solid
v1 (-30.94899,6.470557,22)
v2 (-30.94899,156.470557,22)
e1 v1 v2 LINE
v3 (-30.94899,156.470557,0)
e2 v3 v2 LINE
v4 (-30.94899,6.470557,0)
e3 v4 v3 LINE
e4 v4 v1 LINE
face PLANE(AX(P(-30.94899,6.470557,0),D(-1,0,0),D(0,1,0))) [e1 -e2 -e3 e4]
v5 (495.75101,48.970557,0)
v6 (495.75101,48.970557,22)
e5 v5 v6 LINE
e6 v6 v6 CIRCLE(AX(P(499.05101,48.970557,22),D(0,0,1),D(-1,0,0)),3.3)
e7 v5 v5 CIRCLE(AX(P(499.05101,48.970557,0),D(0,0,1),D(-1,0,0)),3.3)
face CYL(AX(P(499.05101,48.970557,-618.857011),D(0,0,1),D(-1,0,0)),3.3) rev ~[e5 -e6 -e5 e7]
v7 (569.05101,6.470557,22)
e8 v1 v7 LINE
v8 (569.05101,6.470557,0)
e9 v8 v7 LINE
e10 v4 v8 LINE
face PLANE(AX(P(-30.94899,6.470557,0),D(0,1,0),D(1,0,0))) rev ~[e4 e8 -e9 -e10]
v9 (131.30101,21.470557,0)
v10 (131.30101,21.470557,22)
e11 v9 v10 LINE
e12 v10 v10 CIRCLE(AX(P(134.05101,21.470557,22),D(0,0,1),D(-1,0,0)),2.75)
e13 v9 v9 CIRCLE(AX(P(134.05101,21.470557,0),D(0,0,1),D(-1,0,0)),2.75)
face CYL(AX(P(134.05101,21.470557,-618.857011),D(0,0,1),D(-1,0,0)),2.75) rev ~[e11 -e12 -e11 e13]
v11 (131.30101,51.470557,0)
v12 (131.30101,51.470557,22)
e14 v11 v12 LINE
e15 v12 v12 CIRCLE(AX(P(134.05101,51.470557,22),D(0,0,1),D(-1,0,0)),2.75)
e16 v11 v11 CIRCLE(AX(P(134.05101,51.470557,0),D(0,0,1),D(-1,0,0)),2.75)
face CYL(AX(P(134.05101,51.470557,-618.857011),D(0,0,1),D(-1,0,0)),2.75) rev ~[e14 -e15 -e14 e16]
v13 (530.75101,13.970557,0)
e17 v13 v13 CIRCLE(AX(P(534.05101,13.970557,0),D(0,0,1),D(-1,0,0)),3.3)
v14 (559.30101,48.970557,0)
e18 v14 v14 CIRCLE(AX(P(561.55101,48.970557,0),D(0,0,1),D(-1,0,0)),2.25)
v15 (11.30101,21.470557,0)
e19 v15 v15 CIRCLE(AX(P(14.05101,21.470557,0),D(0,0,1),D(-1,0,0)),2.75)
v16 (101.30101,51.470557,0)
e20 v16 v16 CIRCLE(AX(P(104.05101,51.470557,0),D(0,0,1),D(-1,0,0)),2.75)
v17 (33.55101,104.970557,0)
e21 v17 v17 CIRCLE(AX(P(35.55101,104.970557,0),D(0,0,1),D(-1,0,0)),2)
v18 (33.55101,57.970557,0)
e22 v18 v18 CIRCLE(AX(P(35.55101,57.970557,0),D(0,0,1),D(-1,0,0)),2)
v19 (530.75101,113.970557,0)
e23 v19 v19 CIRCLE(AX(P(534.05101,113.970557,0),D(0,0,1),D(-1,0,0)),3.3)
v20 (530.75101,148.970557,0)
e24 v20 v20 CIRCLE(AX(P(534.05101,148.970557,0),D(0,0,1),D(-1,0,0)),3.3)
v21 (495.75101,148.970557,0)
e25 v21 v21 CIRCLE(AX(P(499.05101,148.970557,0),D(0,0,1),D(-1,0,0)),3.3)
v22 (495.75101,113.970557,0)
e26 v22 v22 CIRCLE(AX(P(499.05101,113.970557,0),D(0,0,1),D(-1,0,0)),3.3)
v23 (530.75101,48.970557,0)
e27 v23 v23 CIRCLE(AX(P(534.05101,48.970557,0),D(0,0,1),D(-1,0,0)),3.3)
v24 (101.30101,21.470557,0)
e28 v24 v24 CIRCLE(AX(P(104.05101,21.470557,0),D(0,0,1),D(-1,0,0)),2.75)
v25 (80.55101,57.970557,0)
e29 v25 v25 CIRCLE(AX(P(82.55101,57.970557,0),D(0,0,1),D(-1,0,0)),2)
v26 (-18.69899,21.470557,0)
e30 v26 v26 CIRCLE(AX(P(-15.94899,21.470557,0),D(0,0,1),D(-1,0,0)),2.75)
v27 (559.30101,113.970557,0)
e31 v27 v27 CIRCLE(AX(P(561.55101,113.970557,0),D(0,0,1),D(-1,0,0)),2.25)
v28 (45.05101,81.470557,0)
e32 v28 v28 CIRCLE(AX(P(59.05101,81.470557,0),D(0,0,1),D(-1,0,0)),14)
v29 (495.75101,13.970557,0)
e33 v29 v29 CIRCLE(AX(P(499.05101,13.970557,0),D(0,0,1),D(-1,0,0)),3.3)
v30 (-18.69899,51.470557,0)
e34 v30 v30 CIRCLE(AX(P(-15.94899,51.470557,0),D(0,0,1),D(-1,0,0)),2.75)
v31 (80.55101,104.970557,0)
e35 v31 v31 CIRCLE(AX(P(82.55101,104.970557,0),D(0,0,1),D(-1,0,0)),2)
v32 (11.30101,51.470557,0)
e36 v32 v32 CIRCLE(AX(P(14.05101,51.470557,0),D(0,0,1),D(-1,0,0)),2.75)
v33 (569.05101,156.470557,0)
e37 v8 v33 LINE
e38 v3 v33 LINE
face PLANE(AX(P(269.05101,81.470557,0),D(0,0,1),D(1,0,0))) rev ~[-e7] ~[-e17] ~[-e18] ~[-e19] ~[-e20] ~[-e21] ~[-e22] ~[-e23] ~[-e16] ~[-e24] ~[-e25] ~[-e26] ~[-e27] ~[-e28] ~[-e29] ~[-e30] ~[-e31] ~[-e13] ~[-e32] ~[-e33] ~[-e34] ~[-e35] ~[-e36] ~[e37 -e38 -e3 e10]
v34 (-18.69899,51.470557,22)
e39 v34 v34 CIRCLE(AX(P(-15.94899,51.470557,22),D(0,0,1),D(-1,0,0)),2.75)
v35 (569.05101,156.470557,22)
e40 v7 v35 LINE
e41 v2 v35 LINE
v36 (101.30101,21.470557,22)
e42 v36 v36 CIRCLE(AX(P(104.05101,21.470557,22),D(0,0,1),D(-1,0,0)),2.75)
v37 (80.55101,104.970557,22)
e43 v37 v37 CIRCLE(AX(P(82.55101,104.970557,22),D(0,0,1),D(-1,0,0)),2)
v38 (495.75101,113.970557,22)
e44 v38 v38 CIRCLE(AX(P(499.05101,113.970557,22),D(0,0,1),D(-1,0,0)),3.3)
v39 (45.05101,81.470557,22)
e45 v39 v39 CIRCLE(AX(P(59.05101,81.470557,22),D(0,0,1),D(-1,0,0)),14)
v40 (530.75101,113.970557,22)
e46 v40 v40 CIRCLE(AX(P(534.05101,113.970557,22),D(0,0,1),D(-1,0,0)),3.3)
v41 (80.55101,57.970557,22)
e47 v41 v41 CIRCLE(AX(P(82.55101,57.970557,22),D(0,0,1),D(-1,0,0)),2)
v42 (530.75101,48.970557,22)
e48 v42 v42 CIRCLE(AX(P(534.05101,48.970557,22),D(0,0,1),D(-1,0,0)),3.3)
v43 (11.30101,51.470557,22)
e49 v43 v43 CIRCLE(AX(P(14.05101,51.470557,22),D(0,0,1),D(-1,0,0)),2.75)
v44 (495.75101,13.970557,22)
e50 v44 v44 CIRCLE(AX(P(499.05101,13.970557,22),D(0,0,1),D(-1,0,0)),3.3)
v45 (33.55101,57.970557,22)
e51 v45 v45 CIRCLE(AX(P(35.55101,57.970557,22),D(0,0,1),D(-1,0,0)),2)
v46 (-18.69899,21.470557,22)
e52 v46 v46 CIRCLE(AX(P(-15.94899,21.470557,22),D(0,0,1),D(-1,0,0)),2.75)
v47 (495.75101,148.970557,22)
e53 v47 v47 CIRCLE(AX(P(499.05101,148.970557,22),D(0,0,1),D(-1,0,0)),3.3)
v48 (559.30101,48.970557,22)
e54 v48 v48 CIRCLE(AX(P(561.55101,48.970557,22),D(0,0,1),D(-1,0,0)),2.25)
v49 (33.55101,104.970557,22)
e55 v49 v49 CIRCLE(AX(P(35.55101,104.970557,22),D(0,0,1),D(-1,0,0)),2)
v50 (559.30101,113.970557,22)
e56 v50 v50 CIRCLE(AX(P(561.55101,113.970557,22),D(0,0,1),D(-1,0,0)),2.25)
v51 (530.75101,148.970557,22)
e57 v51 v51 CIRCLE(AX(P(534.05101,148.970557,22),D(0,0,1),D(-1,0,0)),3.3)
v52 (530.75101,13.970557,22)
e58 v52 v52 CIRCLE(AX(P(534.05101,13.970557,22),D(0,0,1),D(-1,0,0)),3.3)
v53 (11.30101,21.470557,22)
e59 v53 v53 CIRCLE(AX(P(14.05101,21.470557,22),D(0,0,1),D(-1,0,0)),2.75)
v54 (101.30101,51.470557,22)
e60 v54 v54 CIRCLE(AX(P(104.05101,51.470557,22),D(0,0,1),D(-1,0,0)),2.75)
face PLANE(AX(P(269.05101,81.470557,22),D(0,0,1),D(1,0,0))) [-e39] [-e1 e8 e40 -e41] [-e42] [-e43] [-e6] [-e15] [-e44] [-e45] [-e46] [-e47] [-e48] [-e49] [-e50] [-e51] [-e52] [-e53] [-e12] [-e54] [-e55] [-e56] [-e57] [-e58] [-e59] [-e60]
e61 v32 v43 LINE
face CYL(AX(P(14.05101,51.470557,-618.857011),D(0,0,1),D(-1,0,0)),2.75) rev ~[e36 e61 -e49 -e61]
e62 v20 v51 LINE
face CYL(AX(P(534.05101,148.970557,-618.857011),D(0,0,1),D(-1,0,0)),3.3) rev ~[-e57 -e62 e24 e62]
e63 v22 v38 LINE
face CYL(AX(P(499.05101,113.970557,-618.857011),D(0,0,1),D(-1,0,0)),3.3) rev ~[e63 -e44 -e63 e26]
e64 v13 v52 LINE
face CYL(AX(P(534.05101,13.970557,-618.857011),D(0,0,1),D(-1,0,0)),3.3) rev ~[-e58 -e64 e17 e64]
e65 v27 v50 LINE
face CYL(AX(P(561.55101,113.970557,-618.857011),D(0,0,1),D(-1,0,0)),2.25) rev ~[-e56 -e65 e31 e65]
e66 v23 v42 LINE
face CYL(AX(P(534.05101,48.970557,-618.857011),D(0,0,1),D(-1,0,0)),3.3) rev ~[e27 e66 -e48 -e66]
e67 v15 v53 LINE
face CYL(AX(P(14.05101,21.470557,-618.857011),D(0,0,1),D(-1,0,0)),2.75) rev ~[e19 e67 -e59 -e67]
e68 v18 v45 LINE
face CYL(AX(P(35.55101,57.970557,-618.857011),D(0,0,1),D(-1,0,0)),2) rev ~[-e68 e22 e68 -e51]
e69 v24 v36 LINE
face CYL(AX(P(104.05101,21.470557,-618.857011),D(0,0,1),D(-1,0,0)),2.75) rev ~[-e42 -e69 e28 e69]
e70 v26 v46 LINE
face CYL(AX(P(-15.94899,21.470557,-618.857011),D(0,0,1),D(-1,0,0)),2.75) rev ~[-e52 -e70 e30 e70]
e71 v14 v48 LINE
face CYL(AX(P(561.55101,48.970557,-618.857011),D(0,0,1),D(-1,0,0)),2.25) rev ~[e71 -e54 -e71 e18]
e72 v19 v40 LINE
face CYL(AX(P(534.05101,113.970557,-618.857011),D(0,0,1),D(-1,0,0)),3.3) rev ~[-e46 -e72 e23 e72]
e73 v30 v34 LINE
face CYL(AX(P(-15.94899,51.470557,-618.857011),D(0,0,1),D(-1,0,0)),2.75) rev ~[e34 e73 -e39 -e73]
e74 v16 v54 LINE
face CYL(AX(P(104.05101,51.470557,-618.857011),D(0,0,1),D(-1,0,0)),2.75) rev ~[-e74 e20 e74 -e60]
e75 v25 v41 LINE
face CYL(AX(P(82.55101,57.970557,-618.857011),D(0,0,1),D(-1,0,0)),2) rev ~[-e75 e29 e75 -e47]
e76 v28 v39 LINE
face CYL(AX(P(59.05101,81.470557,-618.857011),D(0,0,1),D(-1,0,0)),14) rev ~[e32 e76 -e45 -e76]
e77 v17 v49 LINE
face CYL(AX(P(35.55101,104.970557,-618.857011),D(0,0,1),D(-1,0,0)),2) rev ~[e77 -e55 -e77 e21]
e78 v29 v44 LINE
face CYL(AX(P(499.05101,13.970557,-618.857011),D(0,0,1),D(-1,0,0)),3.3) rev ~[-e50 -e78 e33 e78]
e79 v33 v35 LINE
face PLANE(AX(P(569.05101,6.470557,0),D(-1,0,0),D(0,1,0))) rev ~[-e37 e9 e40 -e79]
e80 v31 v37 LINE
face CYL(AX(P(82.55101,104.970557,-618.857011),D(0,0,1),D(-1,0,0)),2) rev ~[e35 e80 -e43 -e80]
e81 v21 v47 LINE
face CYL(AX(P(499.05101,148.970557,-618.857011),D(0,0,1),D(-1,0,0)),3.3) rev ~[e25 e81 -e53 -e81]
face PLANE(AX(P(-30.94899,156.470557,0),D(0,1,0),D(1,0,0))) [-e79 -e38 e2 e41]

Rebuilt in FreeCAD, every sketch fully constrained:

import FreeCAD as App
import Part
import Sketcher

doc = App.newDocument("Part")
body = doc.addObject("PartDesign::Body", "Body")

# Sketch on XY plane
sketch1 = body.newObject("Sketcher::SketchObject", "Sketch")
sketch1.AttachmentSupport = (doc.getObject("XY_Plane"), [""])
sketch1.MapMode = "FlatFace"
sketch1.addGeometry([
    Part.LineSegment(App.Vector(-31, 156, 0), App.Vector(-31, 6, 0)),
    Part.LineSegment(App.Vector(-31, 6, 0), App.Vector(569, 6, 0)),
    Part.LineSegment(App.Vector(569, 6, 0), App.Vector(569, 156, 0)),
    Part.LineSegment(App.Vector(569, 156, 0), App.Vector(-31, 156, 0)),
], False)
sketch1.addConstraint([
    Sketcher.Constraint("Coincident", 0, 2, 1, 1),
    Sketcher.Constraint("Coincident", 1, 2, 2, 1),
    Sketcher.Constraint("Coincident", 2, 2, 3, 1),
    Sketcher.Constraint("Coincident", 3, 2, 0, 1),
    Sketcher.Constraint("Vertical", 0),
    Sketcher.Constraint("Horizontal", 1),
    Sketcher.Constraint("Vertical", 2),
    Sketcher.Constraint("Horizontal", 3),
    Sketcher.Constraint("DistanceX", 1, 1, 1, 2, 600.0),
    Sketcher.Constraint("DistanceY", 0, 2, 0, 1, 150.0),
    Sketcher.Constraint("DistanceX", 0, 2, -1, 1, 30.94899),
    Sketcher.Constraint("DistanceY", -1, 1, 0, 2, 6.470557),
])
pad1 = body.newObject("PartDesign::Pad", "Pad")
pad1.Profile = sketch1
pad1.Length = 22

# Sketch on XY plane
sketch2 = body.newObject("Sketcher::SketchObject", "Sketch001")
sketch2.AttachmentSupport = (doc.getObject("XY_Plane"), [""])
sketch2.MapMode = "FlatFace"
sketch2.addGeometry([
    Part.Circle(App.Vector(499.1, 114, 0), App.Vector(0, 0, 1), 3.3),  # 0
    Part.Circle(App.Vector(534.1, 114, 0), App.Vector(0, 0, 1), 3.3),  # 1
    Part.Circle(App.Vector(499.1, 149, 0), App.Vector(0, 0, 1), 3.3),  # 2
    Part.Circle(App.Vector(534.1, 149, 0), App.Vector(0, 0, 1), 3.3),  # 3
    Part.Circle(App.Vector(534.1, 14, 0), App.Vector(0, 0, 1), 3.3),  # 4
    Part.Circle(App.Vector(499.1, 49, 0), App.Vector(0, 0, 1), 3.3),  # 5
    Part.Circle(App.Vector(499.1, 14, 0), App.Vector(0, 0, 1), 3.3),  # 6
    Part.Circle(App.Vector(534.1, 49, 0), App.Vector(0, 0, 1), 3.3),  # 7
], False)
sketch2.addConstraint([
    Sketcher.Constraint("Equal", 0, 1),
    Sketcher.Constraint("Equal", 1, 2),
    Sketcher.Constraint("Equal", 2, 3),
    Sketcher.Constraint("Equal", 3, 4),
    Sketcher.Constraint("Equal", 4, 5),
    Sketcher.Constraint("Equal", 5, 6),
    Sketcher.Constraint("Equal", 6, 7),
    Sketcher.Constraint("Horizontal", 0, 3, 1, 3),
    Sketcher.Constraint("Horizontal", 2, 3, 3, 3),
    Sketcher.Constraint("Horizontal", 4, 3, 6, 3),
    Sketcher.Constraint("Horizontal", 5, 3, 7, 3),
    Sketcher.Constraint("Vertical", 0, 3, 2, 3),
    Sketcher.Constraint("Vertical", 1, 3, 3, 3),
    Sketcher.Constraint("Vertical", 3, 3, 4, 3),
    Sketcher.Constraint("Vertical", 2, 3, 5, 3),
    Sketcher.Constraint("Vertical", 5, 3, 6, 3),
    Sketcher.Constraint("Vertical", 4, 3, 7, 3),
    Sketcher.Constraint("Diameter", 0, 6.6),
    Sketcher.Constraint("DistanceX", 0, 3, 1, 3, 35.0),
    Sketcher.Constraint("DistanceY", 0, 3, 2, 3, 35.0),
    Sketcher.Constraint("DistanceY", 4, 3, 1, 3, 100.0),
    Sketcher.Constraint("DistanceY", 4, 3, 5, 3, 35.0),
    Sketcher.Constraint("DistanceX", -1, 1, 0, 3, 499.05101),
    Sketcher.Constraint("DistanceY", -1, 1, 0, 3, 113.970557),
])
doc.recompute()
hole = body.newObject("PartDesign::Hole", "Hole")
hole.Profile = sketch2
hole.ThreadType = "None"
hole.Diameter = 6.6
hole.DepthType = "ThroughAll"
hole.Reversed = True

# Sketch on XY plane
sketch3 = body.newObject("Sketcher::SketchObject", "Sketch002")
sketch3.AttachmentSupport = (doc.getObject("XY_Plane"), [""])
sketch3.MapMode = "FlatFace"
sketch3.addGeometry([
    Part.Circle(App.Vector(-15.9, 21.5, 0), App.Vector(0, 0, 1), 2.8),  # 0
    Part.Circle(App.Vector(14.1, 21.5, 0), App.Vector(0, 0, 1), 2.8),  # 1
    Part.Circle(App.Vector(104.1, 51.5, 0), App.Vector(0, 0, 1), 2.8),  # 2
    Part.Circle(App.Vector(104.1, 21.5, 0), App.Vector(0, 0, 1), 2.8),  # 3
    Part.Circle(App.Vector(14.1, 51.5, 0), App.Vector(0, 0, 1), 2.8),  # 4
    Part.Circle(App.Vector(134.1, 51.5, 0), App.Vector(0, 0, 1), 2.8),  # 5
    Part.Circle(App.Vector(134.1, 21.5, 0), App.Vector(0, 0, 1), 2.8),  # 6
    Part.Circle(App.Vector(-15.9, 51.5, 0), App.Vector(0, 0, 1), 2.8),  # 7
], False)
sketch3.addConstraint([
    Sketcher.Constraint("Equal", 0, 1),
    Sketcher.Constraint("Equal", 1, 2),
    Sketcher.Constraint("Equal", 2, 3),
    Sketcher.Constraint("Equal", 3, 4),
    Sketcher.Constraint("Equal", 4, 5),
    Sketcher.Constraint("Equal", 5, 6),
    Sketcher.Constraint("Equal", 6, 7),
    Sketcher.Constraint("Horizontal", 0, 3, 1, 3),
    Sketcher.Constraint("Horizontal", 1, 3, 3, 3),
    Sketcher.Constraint("Horizontal", 2, 3, 4, 3),
    Sketcher.Constraint("Horizontal", 4, 3, 5, 3),
    Sketcher.Constraint("Horizontal", 3, 3, 6, 3),
    Sketcher.Constraint("Horizontal", 5, 3, 7, 3),
    Sketcher.Constraint("Vertical", 2, 3, 3, 3),
    Sketcher.Constraint("Vertical", 1, 3, 4, 3),
    Sketcher.Constraint("Vertical", 5, 3, 6, 3),
    Sketcher.Constraint("Vertical", 0, 3, 7, 3),
    Sketcher.Constraint("Diameter", 0, 5.5),
    Sketcher.Constraint("DistanceX", 0, 3, 1, 3, 30.0),
    Sketcher.Constraint("DistanceX", 1, 3, 2, 3, 90.0),
    Sketcher.Constraint("DistanceY", 1, 3, 2, 3, 30.0),
    Sketcher.Constraint("DistanceX", 2, 3, 5, 3, 30.0),
    Sketcher.Constraint("DistanceX", 0, 3, -1, 1, 15.94899),
    Sketcher.Constraint("DistanceY", -1, 1, 0, 3, 21.470557),
])
doc.recompute()
hole2 = body.newObject("PartDesign::Hole", "Hole001")
hole2.Profile = sketch3
hole2.ThreadType = "None"
hole2.Diameter = 5.5
hole2.DepthType = "ThroughAll"
hole2.Reversed = True

# Sketch on XY plane
sketch4 = body.newObject("Sketcher::SketchObject", "Sketch003")
sketch4.AttachmentSupport = (doc.getObject("XY_Plane"), [""])
sketch4.MapMode = "FlatFace"
sketch4.addGeometry(Part.Circle(App.Vector(59, 81, 0), App.Vector(0, 0, 1), 14), False)
sketch4.addConstraint([
    Sketcher.Constraint("Diameter", 0, 28.0),
    Sketcher.Constraint("DistanceX", -1, 1, 0, 3, 59.05101),
    Sketcher.Constraint("DistanceY", -1, 1, 0, 3, 81.470557),
])
doc.recompute()
hole3 = body.newObject("PartDesign::Hole", "Hole002")
hole3.Profile = sketch4
hole3.ThreadType = "None"
hole3.Diameter = 28
hole3.DepthType = "ThroughAll"
hole3.Reversed = True

# Sketch on XY plane
sketch5 = body.newObject("Sketcher::SketchObject", "Sketch004")
sketch5.AttachmentSupport = (doc.getObject("XY_Plane"), [""])
sketch5.MapMode = "FlatFace"
sketch5.addGeometry([
    Part.Circle(App.Vector(561.6, 114, 0), App.Vector(0, 0, 1), 2.2),
    Part.Circle(App.Vector(561.6, 49, 0), App.Vector(0, 0, 1), 2.2),
], False)
sketch5.addConstraint([
    Sketcher.Constraint("Equal", 0, 1),
    Sketcher.Constraint("Vertical", 0, 3, 1, 3),
    Sketcher.Constraint("Diameter", 0, 4.5),
    Sketcher.Constraint("DistanceY", 1, 3, 0, 3, 65.0),
    Sketcher.Constraint("DistanceX", -1, 1, 0, 3, 561.55101),
    Sketcher.Constraint("DistanceY", -1, 1, 0, 3, 113.970557),
])
doc.recompute()
hole4 = body.newObject("PartDesign::Hole", "Hole003")
hole4.Profile = sketch5
hole4.ThreadType = "None"
hole4.Diameter = 4.5
hole4.DepthType = "ThroughAll"
hole4.Reversed = True

# Sketch on XY plane
sketch6 = body.newObject("Sketcher::SketchObject", "Sketch005")
sketch6.AttachmentSupport = (doc.getObject("XY_Plane"), [""])
sketch6.MapMode = "FlatFace"
sketch6.addGeometry([
    Part.Circle(App.Vector(82.6, 105, 0), App.Vector(0, 0, 1), 2),
    Part.Circle(App.Vector(35.6, 105, 0), App.Vector(0, 0, 1), 2),
    Part.Circle(App.Vector(35.6, 58, 0), App.Vector(0, 0, 1), 2),
    Part.Circle(App.Vector(82.6, 58, 0), App.Vector(0, 0, 1), 2),
], False)
sketch6.addConstraint([
    Sketcher.Constraint("Equal", 0, 1),
    Sketcher.Constraint("Equal", 1, 2),
    Sketcher.Constraint("Equal", 2, 3),
    Sketcher.Constraint("Horizontal", 0, 3, 1, 3),
    Sketcher.Constraint("Horizontal", 2, 3, 3, 3),
    Sketcher.Constraint("Vertical", 1, 3, 2, 3),
    Sketcher.Constraint("Vertical", 0, 3, 3, 3),
    Sketcher.Constraint("Diameter", 0, 4.0),
    Sketcher.Constraint("DistanceX", 1, 3, 0, 3, 47.0),
    Sketcher.Constraint("DistanceY", 2, 3, 1, 3, 47.0),
    Sketcher.Constraint("DistanceX", -1, 1, 0, 3, 82.55101),
    Sketcher.Constraint("DistanceY", -1, 1, 0, 3, 104.970557),
])
doc.recompute()
hole5 = body.newObject("PartDesign::Hole", "Hole004")
hole5.Profile = sketch6
hole5.ThreadType = "None"
hole5.Diameter = 4
hole5.DepthType = "ThroughAll"
hole5.Reversed = True

doc.recompute()
